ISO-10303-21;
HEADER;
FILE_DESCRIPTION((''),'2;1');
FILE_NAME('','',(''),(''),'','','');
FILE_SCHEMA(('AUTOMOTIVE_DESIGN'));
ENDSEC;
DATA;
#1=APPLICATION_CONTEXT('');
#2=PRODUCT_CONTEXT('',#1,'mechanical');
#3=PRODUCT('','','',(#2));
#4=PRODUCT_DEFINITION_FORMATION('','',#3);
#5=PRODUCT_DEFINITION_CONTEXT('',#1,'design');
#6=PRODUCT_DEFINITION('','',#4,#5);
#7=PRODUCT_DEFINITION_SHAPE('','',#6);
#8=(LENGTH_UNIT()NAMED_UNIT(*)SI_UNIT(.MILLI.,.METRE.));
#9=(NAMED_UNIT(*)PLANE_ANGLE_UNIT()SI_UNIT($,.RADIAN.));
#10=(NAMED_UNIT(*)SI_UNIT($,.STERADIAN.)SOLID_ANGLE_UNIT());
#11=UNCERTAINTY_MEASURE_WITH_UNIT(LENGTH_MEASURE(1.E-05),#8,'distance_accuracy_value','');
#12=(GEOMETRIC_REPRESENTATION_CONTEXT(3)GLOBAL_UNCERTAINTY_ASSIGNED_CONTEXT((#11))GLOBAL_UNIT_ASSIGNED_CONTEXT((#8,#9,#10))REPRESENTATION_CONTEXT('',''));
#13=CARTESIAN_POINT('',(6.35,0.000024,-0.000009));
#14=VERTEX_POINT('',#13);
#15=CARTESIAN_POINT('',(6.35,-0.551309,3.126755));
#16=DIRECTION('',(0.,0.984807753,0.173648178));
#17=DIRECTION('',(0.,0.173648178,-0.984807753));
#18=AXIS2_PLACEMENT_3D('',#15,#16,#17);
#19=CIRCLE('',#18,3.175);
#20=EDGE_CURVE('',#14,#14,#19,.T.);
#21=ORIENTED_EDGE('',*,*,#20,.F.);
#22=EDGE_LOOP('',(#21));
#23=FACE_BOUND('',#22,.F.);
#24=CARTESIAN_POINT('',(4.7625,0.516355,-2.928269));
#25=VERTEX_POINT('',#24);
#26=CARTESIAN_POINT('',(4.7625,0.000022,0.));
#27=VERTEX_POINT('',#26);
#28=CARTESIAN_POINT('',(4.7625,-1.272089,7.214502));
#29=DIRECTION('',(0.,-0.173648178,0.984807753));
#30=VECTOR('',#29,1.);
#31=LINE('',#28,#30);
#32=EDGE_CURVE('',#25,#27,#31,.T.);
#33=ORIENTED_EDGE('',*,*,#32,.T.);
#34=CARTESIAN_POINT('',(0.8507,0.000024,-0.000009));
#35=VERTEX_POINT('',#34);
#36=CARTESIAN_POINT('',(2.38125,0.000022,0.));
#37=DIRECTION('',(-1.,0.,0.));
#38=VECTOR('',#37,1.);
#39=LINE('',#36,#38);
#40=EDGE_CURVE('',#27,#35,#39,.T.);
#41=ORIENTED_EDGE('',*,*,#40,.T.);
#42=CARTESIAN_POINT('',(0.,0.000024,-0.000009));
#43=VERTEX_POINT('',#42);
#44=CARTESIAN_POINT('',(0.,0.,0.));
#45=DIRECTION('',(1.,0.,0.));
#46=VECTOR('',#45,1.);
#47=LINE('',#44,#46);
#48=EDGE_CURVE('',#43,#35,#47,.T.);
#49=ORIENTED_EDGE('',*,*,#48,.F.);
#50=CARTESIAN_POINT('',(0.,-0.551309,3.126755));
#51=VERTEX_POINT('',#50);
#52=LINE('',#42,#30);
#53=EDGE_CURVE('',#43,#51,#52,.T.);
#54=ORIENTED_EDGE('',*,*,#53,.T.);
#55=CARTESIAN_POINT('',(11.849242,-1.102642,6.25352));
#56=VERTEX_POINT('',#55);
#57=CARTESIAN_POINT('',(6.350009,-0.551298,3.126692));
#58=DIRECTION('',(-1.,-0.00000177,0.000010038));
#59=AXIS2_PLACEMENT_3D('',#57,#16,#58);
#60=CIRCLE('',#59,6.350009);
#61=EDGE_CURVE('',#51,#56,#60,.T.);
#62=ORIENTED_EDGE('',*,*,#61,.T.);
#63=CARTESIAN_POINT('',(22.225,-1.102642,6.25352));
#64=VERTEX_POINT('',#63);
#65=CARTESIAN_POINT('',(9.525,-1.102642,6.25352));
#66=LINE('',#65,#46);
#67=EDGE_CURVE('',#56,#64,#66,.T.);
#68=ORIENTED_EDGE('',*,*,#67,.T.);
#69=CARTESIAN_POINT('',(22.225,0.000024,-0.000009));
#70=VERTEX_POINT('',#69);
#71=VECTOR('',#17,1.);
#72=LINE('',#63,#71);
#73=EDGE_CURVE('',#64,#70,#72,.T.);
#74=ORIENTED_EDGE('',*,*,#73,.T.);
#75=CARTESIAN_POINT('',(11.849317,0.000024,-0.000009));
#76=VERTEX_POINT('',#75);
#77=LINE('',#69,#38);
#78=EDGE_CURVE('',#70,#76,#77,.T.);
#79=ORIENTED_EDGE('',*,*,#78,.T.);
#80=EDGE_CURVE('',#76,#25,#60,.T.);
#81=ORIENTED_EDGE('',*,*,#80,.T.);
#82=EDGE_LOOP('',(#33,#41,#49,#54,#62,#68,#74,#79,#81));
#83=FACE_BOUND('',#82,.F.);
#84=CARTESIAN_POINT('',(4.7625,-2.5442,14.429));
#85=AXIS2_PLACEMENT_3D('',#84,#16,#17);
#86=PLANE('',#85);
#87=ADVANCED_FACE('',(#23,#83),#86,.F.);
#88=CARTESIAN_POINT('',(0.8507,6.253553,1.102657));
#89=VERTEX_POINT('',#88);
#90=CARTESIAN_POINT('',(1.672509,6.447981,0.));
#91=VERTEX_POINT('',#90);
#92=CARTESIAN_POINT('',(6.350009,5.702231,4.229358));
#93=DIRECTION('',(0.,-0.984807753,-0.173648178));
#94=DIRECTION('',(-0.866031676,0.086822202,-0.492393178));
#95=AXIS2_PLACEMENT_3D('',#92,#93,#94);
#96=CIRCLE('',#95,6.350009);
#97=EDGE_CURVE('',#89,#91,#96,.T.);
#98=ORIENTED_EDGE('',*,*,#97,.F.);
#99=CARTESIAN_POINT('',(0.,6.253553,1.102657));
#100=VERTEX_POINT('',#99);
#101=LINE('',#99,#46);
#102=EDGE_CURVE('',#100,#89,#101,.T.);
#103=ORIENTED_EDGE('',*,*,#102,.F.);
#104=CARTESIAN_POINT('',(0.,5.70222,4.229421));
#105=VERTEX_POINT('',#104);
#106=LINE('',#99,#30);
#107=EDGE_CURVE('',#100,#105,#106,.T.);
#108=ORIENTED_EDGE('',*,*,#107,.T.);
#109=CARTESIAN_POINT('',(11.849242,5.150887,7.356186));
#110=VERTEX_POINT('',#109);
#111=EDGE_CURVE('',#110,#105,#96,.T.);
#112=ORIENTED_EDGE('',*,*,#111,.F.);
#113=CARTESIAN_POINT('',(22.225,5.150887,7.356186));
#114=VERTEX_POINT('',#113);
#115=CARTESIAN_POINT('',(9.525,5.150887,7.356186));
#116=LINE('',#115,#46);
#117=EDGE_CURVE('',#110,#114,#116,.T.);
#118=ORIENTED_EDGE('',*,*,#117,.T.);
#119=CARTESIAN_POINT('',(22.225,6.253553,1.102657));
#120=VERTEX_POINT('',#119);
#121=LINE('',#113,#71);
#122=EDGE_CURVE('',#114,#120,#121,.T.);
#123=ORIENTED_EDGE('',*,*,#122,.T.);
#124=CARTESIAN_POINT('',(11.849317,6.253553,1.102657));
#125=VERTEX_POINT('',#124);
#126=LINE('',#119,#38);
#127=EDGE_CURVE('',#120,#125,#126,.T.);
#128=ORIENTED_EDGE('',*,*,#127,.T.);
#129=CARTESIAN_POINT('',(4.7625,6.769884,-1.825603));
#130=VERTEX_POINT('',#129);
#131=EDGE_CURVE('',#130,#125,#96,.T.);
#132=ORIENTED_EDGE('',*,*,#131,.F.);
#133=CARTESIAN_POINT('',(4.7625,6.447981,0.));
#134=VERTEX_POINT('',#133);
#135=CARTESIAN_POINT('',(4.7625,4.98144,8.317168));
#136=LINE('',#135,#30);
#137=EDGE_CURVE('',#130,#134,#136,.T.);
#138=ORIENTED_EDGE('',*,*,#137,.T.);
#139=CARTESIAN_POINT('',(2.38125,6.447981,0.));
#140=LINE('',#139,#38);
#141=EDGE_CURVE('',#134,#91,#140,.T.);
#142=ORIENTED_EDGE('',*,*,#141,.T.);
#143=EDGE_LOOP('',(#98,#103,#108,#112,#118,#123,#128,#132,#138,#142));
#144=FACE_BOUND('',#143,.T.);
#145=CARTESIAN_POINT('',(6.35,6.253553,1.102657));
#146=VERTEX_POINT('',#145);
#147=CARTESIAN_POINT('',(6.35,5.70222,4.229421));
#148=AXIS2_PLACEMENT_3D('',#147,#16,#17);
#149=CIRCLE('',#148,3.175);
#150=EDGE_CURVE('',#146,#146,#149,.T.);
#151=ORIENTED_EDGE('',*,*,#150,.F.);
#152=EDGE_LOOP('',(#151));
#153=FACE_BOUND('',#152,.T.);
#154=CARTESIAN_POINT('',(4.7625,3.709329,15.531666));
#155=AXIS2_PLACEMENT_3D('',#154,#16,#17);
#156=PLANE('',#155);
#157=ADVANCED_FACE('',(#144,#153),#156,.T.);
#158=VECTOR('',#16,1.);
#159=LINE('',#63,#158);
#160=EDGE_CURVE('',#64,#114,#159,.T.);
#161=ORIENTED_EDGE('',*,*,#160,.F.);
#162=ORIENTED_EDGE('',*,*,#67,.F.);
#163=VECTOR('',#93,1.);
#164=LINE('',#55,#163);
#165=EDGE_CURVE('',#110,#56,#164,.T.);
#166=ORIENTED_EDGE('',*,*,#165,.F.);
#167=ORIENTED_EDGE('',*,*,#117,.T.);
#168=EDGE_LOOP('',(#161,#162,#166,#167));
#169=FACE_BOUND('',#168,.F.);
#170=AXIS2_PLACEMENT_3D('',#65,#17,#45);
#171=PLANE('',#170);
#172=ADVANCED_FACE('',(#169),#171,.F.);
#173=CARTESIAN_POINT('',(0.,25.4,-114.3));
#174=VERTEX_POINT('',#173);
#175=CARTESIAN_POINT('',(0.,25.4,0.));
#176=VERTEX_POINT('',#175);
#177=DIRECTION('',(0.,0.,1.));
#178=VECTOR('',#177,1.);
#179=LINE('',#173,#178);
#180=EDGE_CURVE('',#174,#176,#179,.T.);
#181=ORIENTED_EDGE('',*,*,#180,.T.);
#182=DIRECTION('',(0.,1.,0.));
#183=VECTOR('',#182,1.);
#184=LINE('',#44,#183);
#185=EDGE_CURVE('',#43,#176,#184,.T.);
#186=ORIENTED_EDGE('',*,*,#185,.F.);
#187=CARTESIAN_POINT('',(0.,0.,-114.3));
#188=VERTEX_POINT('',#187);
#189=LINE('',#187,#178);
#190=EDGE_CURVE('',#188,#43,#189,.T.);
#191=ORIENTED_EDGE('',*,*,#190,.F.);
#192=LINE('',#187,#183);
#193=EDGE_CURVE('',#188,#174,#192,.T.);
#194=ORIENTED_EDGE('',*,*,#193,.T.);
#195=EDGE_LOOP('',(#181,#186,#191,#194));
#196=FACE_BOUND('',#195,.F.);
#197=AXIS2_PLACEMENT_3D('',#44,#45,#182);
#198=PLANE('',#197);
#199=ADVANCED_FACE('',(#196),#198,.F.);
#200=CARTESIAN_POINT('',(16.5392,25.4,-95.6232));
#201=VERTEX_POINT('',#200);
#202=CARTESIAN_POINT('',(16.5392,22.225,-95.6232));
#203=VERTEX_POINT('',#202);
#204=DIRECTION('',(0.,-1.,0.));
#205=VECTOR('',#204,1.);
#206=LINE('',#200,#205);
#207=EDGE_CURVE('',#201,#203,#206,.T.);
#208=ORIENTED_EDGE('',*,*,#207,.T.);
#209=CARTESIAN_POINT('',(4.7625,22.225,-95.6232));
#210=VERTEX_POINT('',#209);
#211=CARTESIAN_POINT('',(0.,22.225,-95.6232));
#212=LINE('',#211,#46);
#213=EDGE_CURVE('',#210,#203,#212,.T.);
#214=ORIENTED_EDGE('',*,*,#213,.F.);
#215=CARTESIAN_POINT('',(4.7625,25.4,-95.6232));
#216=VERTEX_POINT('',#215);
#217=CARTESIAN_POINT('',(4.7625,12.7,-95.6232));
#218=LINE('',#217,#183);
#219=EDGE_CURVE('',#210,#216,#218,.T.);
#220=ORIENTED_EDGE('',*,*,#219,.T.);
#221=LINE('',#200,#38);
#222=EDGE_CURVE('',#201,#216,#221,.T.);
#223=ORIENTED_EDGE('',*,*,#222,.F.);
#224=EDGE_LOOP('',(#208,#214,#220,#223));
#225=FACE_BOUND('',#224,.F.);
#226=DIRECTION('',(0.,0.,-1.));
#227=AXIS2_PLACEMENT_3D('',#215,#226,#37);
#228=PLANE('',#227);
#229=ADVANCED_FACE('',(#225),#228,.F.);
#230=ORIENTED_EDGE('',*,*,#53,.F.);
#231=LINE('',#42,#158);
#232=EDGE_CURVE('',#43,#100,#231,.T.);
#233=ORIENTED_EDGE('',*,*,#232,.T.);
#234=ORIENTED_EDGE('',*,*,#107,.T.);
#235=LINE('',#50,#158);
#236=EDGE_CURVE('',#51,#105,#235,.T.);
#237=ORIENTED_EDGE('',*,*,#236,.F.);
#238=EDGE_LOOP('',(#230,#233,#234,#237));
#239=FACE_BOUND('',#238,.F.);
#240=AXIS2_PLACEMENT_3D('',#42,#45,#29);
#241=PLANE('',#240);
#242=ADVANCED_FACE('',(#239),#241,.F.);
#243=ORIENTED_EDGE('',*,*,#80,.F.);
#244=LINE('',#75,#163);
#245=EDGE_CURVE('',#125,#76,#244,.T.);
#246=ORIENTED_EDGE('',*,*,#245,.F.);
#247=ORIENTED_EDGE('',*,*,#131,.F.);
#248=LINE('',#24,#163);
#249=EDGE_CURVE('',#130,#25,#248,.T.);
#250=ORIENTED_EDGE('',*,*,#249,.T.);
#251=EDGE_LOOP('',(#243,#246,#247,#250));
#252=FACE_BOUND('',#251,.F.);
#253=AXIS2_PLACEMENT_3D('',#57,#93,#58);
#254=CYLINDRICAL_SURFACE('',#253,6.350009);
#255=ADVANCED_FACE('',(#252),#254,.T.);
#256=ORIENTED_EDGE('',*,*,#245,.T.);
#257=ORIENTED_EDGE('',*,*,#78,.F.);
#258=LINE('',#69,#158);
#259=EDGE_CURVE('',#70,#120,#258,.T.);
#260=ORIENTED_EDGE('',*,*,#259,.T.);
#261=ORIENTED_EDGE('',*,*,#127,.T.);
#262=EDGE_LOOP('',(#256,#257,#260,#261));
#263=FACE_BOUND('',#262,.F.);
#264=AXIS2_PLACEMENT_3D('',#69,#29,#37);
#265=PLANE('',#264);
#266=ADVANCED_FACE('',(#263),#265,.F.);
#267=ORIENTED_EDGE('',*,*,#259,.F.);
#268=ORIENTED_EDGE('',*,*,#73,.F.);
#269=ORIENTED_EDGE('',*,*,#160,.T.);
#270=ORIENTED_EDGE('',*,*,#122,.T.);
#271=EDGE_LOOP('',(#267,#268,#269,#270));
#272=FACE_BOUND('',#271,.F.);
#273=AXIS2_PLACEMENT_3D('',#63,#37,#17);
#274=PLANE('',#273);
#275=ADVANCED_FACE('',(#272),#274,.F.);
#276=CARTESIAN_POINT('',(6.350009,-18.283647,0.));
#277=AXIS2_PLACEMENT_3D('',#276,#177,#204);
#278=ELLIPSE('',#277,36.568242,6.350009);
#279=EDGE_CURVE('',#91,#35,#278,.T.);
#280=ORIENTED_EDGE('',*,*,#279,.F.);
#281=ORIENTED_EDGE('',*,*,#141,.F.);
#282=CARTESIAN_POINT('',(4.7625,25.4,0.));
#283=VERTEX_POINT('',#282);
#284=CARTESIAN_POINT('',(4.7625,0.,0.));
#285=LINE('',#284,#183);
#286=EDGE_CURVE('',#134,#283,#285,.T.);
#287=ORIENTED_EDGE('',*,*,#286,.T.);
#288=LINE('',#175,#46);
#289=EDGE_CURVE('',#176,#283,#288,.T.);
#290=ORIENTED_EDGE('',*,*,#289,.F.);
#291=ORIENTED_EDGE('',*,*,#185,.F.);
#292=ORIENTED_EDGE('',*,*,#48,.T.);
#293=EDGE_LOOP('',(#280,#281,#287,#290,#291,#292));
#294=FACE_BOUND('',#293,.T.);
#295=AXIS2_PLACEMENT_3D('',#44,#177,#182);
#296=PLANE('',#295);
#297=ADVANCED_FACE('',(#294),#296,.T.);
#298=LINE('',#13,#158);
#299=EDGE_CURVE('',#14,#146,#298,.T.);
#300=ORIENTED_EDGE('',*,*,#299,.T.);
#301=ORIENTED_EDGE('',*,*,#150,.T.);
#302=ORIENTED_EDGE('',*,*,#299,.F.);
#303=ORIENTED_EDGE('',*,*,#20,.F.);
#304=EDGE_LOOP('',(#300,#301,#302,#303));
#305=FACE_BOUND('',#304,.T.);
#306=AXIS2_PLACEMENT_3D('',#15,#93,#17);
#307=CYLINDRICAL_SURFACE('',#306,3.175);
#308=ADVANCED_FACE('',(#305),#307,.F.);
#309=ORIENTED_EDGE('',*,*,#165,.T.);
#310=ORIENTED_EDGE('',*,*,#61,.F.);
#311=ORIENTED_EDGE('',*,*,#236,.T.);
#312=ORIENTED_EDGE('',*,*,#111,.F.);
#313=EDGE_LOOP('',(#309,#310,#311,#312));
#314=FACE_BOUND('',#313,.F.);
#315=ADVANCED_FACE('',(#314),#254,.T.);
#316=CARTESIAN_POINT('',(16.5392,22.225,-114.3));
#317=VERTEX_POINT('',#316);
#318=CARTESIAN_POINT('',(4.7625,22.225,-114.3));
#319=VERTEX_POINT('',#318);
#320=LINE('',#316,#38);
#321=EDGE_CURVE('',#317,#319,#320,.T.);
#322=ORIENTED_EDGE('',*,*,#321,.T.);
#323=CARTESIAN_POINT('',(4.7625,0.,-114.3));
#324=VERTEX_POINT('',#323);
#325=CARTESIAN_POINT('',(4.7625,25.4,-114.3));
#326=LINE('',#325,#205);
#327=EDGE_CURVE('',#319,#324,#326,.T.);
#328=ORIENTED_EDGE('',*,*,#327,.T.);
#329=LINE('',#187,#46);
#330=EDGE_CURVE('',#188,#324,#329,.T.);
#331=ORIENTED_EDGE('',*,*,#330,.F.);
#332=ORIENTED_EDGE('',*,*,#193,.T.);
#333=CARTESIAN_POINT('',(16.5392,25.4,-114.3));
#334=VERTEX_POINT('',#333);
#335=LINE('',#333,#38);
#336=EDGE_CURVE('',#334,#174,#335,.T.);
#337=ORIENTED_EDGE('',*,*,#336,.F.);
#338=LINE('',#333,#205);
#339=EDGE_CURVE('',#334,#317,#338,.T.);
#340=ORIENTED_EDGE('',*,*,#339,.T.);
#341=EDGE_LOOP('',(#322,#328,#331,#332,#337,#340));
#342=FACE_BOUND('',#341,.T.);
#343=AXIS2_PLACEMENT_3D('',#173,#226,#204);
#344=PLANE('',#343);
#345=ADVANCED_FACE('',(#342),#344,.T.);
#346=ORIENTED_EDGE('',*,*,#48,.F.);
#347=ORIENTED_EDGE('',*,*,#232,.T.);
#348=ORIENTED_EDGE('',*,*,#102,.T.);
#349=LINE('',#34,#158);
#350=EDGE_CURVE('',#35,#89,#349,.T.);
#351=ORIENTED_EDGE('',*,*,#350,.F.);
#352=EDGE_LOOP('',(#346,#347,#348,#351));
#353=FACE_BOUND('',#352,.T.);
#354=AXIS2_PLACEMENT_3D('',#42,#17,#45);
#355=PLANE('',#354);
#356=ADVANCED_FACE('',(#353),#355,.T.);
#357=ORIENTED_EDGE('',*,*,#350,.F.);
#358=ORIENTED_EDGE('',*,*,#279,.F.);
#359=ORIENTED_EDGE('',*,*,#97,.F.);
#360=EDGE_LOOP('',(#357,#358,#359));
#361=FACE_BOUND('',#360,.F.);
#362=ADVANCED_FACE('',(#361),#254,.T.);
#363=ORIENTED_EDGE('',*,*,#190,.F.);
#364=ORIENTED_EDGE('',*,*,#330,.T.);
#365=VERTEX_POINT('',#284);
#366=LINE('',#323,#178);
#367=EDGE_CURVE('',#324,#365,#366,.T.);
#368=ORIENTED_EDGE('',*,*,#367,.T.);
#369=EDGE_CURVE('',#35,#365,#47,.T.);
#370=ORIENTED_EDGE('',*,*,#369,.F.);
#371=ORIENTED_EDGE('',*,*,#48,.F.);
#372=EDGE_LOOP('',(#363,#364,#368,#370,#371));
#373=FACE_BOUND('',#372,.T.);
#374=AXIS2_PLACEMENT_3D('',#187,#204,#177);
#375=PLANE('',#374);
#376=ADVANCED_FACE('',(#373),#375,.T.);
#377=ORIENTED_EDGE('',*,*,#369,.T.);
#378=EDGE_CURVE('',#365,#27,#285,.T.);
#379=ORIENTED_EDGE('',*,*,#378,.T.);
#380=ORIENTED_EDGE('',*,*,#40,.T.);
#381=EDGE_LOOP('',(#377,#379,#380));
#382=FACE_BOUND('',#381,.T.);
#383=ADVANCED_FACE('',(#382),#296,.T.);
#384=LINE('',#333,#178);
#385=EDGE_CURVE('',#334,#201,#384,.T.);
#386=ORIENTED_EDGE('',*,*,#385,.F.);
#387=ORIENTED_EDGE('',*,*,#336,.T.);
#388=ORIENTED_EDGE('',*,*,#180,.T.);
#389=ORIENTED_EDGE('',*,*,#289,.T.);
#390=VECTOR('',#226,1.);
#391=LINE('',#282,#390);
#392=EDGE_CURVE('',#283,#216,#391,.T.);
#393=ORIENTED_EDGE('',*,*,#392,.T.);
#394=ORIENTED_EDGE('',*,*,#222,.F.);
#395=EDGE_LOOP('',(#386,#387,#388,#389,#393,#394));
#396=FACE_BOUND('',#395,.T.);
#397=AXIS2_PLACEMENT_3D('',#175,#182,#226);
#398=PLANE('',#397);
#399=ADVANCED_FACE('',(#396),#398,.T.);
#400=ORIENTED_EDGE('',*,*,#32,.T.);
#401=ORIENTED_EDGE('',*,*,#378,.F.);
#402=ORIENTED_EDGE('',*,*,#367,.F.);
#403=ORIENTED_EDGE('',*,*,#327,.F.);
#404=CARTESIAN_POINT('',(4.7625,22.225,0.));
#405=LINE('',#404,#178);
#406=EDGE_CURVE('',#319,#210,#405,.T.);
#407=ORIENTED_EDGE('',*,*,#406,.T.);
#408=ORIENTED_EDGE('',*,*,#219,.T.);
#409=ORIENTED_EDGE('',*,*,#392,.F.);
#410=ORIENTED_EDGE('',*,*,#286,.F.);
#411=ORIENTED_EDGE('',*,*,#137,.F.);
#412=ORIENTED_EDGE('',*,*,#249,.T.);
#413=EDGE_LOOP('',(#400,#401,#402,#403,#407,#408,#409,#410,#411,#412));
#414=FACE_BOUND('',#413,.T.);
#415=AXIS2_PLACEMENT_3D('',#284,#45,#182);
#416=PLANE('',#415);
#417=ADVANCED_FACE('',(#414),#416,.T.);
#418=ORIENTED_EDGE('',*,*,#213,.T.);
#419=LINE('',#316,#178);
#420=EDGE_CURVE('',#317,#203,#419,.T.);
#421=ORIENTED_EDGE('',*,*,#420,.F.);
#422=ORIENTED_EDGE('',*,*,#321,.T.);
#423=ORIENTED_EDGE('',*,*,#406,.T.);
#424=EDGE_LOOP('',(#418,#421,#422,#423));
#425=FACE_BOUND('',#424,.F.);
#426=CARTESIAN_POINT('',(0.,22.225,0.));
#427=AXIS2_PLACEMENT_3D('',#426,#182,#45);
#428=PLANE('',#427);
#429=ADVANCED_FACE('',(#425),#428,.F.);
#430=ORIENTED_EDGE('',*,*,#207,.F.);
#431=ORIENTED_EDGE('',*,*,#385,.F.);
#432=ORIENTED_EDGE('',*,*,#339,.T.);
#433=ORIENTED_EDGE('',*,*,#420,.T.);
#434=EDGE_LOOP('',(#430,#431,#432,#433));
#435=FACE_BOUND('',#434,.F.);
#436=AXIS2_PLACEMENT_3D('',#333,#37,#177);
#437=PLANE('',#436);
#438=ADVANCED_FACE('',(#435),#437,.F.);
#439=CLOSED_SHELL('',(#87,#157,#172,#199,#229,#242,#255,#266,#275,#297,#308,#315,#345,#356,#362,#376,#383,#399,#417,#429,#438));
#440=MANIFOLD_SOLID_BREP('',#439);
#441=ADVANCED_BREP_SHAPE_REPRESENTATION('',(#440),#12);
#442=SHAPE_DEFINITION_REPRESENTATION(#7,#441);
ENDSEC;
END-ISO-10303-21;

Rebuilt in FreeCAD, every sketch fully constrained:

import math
import FreeCAD as App
import Part
import Sketcher
Q = App.Units.Quantity


def add_polygon(sketch, points):
    """Adds a closed chain of lines whose ends are joined by coincident constraints."""
    first, n = sketch.GeometryCount, len(points)
    for a, b in zip(points, points[1:] + points[:1]):
        sketch.addGeometry(Part.LineSegment(App.Vector(*a, 0), App.Vector(*b, 0)), False)
    for i in range(n):
        sketch.addConstraint(Sketcher.Constraint("Coincident", first + i, 2, first + (i + 1) % n, 1))

doc = App.newDocument("Part")
body = doc.addObject("PartDesign::Body", "Body")

sketch1 = body.newObject("Sketcher::SketchObject", "Sketch")
sketch1.AttachmentSupport = (doc.getObject("YZ_Plane"), [""])
sketch1.MapMode = "FlatFace"
add_polygon(sketch1, [(25, 0), (0, 0), (0, -114), (25, -114)])
sketch1.addConstraint([
    Sketcher.Constraint("Horizontal", 0),
    Sketcher.Constraint("Vertical", 1),
    Sketcher.Constraint("Horizontal", 2),
    Sketcher.Constraint("Vertical", 3),
    Sketcher.Constraint("Coincident", 0, 2, -1, 1),
    Sketcher.Constraint("DistanceX", 0, 2, 0, 1, Q("1 in")),
    Sketcher.Constraint("DistanceY", 1, 2, 1, 1, Q("4.5 in")),
])
pad1 = body.newObject("PartDesign::Pad", "Pad")
pad1.Profile = sketch1
pad1.Length = Q("0.1875 in")

sketch2 = body.newObject("Sketcher::SketchObject", "Sketch001")
sketch2.Placement = App.Placement(App.Vector(4.7625, -2.5442, 14.429), App.Rotation(App.Vector(0, 0.173648178, -0.984807753), App.Vector(-1, 0, 0), App.Vector(0, 0.984807753, 0.173648178), "ZXY"))
sketch2.addGeometry([
    Part.LineSegment(App.Vector(14.7, 3.9, 0), App.Vector(14.7, 4.8, 0)),
    Part.LineSegment(App.Vector(14.7, 4.8, 0), App.Vector(11.5, 4.8, 0)),
    Part.ArcOfCircle(Part.Circle(App.Vector(11.5, -1.6, 0), App.Vector(0, 0, 1), 6.3), math.radians(90), math.radians(420)),
    Part.Circle(App.Vector(11.5, -1.6, 0), App.Vector(0, 0, 1), 3.2),
], False)
sketch2.addConstraint([
    Sketcher.Constraint("Coincident", 0, 2, 1, 1),
    Sketcher.Constraint("Tangent", 1, 2, 2, 1),
    Sketcher.Constraint("Coincident", 2, 2, 0, 1),
    Sketcher.Constraint("Vertical", 0),
    Sketcher.Constraint("Horizontal", 1),
    Sketcher.Constraint("Coincident", 3, 3, 2, 3),
    Sketcher.Constraint("Diameter", 3, Q("0.25 in")),
    Sketcher.Constraint("Radius", 2, Q("0.25 in")),
    Sketcher.Constraint("DistanceX", 1, 2, 1, 1, Q("0.125 in")),
    Sketcher.Constraint("DistanceY", 2, 3, -1, 1, Q("0.0625 in")),
    Sketcher.Constraint("DistanceX", -1, 1, 2, 3, Q("11.4766 mm")),
])
pad2 = body.newObject("PartDesign::Pad", "Pad001")
pad2.Profile = sketch2
pad2.Length = Q("0.25 in")

sketch3 = body.newObject("Sketcher::SketchObject", "Sketch002")
sketch3.AttachmentSupport = (doc.getObject("XZ_Plane"), [""])
sketch3.MapMode = "FlatFace"
sketch3.AttachmentOffset = App.Placement(App.Vector(0, 0, -1 * 25.4), App.Rotation())
add_polygon(sketch3, [(0, -114), (0, -96), (17, -96), (17, -114)])
sketch3.addConstraint([
    Sketcher.Constraint("Vertical", 0),
    Sketcher.Constraint("Horizontal", 1),
    Sketcher.Constraint("Vertical", 2),
    Sketcher.Constraint("Horizontal", 3),
    Sketcher.Constraint("PointOnObject", 0, 2, -2),
    Sketcher.Constraint("DistanceY", 2, 2, -1, 1, Q("4.5 in")),
    Sketcher.Constraint("DistanceY", 0, 1, 0, 2, Q("0.7353 in")),
    Sketcher.Constraint("DistanceX", 1, 1, 1, 2, Q("16.5392 mm")),
])
pad3 = body.newObject("PartDesign::Pad", "Pad002")
pad3.Profile = sketch3
pad3.Length = Q("0.125 in")

sketch4 = body.newObject("Sketcher::SketchObject", "Sketch003")
sketch4.Placement = App.Placement(App.Vector(4.7625, -2.5442, 14.429), App.Rotation(App.Vector(0, 0.173648178, -0.984807753), App.Vector(-1, 0, 0), App.Vector(0, 0.984807753, 0.173648178), "ZXY"))
add_polygon(sketch4, [(15, -5), (8, -5), (8, -17), (15, -17)])
sketch4.addConstraint([
    Sketcher.Constraint("Horizontal", 0),
    Sketcher.Constraint("Vertical", 1),
    Sketcher.Constraint("Horizontal", 2),
    Sketcher.Constraint("Vertical", 3),
    Sketcher.Constraint("DistanceY", 1, 2, 1, 1, Q("0.5 in")),
    Sketcher.Constraint("DistanceX", 0, 2, 0, 1, Q("0.25 in")),
    Sketcher.Constraint("DistanceY", 0, 2, -1, 1, Q("0.1875 in")),
    Sketcher.Constraint("DistanceX", -1, 1, 0, 2, Q("8.3016 mm")),
])
pad4 = body.newObject("PartDesign::Pad", "Pad003")
pad4.Profile = sketch4
pad4.Length = Q("0.25 in")

doc.recompute()
